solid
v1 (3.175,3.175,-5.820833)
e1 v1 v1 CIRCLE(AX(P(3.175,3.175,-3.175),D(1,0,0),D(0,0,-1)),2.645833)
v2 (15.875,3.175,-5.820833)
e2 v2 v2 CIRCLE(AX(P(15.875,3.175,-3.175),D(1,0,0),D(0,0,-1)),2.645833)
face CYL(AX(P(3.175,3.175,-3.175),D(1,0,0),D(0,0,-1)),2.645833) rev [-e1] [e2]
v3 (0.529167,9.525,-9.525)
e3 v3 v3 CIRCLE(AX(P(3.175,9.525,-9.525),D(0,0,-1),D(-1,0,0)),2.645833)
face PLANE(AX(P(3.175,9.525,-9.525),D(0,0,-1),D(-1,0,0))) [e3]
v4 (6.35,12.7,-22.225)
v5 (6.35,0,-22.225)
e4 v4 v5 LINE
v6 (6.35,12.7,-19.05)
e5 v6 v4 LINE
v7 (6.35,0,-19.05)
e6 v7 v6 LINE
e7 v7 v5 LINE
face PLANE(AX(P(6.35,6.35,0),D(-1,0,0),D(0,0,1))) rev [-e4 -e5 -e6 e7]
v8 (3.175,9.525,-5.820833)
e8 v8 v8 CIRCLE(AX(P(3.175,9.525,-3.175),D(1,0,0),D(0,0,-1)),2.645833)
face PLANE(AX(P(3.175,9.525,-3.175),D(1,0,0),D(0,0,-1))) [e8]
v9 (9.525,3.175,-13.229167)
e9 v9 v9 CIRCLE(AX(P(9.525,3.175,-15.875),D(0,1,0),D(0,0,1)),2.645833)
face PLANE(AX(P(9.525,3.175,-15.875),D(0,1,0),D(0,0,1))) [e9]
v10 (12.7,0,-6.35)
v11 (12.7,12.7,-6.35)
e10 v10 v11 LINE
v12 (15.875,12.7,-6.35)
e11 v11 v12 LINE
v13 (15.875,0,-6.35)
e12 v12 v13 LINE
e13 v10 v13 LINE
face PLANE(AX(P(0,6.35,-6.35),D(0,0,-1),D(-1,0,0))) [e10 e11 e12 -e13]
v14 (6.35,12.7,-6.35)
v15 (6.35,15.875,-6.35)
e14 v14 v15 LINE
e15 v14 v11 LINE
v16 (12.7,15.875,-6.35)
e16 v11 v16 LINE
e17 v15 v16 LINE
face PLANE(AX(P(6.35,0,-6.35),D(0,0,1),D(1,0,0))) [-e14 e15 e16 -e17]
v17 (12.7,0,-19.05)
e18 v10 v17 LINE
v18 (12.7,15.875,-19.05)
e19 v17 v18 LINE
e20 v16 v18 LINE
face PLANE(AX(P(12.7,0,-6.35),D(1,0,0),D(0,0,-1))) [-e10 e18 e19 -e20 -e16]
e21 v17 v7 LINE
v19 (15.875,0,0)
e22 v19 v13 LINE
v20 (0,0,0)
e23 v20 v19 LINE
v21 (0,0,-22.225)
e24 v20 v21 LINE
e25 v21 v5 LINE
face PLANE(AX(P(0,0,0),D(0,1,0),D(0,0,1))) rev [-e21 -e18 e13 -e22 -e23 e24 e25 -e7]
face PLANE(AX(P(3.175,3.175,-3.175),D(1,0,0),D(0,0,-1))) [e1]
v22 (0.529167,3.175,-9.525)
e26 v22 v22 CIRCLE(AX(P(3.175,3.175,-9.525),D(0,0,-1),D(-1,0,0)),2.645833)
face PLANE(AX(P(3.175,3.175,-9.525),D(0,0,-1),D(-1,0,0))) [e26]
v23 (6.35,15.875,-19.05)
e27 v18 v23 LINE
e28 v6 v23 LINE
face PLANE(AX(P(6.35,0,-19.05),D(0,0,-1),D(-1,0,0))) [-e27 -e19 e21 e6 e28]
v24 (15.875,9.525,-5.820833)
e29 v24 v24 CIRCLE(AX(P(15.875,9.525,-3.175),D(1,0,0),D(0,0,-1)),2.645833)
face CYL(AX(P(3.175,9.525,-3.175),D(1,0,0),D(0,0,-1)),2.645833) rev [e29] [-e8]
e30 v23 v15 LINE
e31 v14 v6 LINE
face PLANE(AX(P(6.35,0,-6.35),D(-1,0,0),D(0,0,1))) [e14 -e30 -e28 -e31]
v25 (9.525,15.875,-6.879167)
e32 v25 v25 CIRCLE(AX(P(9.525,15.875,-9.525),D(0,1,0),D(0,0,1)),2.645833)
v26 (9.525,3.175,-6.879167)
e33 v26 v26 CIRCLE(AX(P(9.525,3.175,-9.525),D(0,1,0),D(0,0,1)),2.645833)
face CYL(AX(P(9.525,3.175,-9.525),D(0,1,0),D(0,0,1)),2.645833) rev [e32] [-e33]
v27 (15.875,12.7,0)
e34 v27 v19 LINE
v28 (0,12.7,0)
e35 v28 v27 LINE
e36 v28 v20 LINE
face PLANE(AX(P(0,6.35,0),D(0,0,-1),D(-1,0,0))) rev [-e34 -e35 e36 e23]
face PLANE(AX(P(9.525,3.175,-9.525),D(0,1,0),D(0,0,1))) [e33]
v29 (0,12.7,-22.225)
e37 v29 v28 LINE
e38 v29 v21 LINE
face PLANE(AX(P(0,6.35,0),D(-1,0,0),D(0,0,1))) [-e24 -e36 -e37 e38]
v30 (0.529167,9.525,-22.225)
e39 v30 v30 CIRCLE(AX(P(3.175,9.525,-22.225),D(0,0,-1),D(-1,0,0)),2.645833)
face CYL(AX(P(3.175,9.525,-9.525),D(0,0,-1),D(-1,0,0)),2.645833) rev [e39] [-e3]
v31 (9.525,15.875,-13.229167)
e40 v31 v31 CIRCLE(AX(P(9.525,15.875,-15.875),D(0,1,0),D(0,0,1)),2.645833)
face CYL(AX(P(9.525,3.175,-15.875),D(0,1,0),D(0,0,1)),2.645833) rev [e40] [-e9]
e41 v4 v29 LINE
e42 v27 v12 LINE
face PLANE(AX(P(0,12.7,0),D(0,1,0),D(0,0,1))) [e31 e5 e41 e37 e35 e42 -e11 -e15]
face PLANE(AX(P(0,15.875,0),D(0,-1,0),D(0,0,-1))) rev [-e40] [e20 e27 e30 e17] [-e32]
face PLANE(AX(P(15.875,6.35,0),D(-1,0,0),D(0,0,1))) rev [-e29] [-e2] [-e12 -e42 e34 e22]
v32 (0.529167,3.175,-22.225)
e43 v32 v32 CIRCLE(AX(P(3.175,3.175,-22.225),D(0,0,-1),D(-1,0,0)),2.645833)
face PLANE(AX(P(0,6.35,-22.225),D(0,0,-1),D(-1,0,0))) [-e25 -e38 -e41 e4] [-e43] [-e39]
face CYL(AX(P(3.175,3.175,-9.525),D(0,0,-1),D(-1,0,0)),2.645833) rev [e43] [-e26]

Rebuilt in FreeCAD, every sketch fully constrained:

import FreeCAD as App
import Part
import Sketcher

V = App.Vector
Q = App.Units.Quantity


def add_polygon(sketch, points):
    """Adds a closed chain of lines whose ends are joined by coincident constraints."""
    first, n = sketch.GeometryCount, len(points)
    for a, b in zip(points, points[1:] + points[:1]):
        sketch.addGeometry(Part.LineSegment(App.Vector(*a, 0), App.Vector(*b, 0)), False)
    for i in range(n):
        sketch.addConstraint(Sketcher.Constraint("Coincident", first + i, 2, first + (i + 1) % n, 1))

doc = App.newDocument("Part")
params = doc.addObject("Spreadsheet::Sheet", "Params")
for row, (alias, value) in enumerate([
    ("sketch1_width", "0.25 in"),
    ("sketch1_width2", "0.625 in"),
    ("pad1_length", "0.25 in"),
    ("pocket1_length", "0.5 in"),
    ("pocket2_length", "0.5 in"),
    ("sketch4_width", "0.25 in"),
    ("sketch4_width2", "0.625 in"),
    ("pad2_length", "0.25 in"),
    ("pocket3_length", "0.5 in"),
    ("pocket4_length", "0.5 in"),
    ("sketch7_height", "0.5 in"),
    ("sketch7_width", "0.25 in"),
    ("pad3_length", "0.125 in"),
    ("pad3_length2", "0.5 in"),
    ("pocket5_length", "0.5 in"),
], start=1):
    params.set(f"A{row}", alias)
    params.set(f"B{row}", "=" + value)
    params.setAlias(f"B{row}", alias)

body = doc.addObject("PartDesign::Body", "Body")

# Sketch on XZ plane
sketch1 = doc.addObject("Sketcher::SketchObject", "Sketch")
body.addObject(sketch1)
sketch1.AttachmentSupport = (doc.XZ_Plane, [""])
sketch1.MapMode = "FlatFace"
add_polygon(sketch1, [(0, -22.225), (0, 0), (15.875, 0), (15.875, -6.35), (6.35, -6.35), (6.35, -22.225)])  # lines 0-5
sketch1.addConstraint([
    Sketcher.Constraint("Vertical", 0),
    Sketcher.Constraint("Horizontal", 1),
    Sketcher.Constraint("Vertical", 2),
    Sketcher.Constraint("Horizontal", 3),
    Sketcher.Constraint("Vertical", 4),
    Sketcher.Constraint("Horizontal", 5),
    Sketcher.Constraint("Coincident", 0, 2, -1, 1),
    Sketcher.Constraint("Equal", 5, 2),
    Sketcher.Constraint("Equal", 1, 4),
    Sketcher.Constraint("DistanceX", 5, 2, 5, 1, Q("0.25 in")),
    Sketcher.Constraint("DistanceX", 1, 1, 1, 2, Q("0.625 in")),
])
sketch1.setExpression("Constraints[15]", "Params.sketch1_width")
sketch1.setExpression("Constraints[16]", "Params.sketch1_width2")
pad1 = doc.addObject("PartDesign::Pad", "Pad")
body.addObject(pad1)
pad1.Profile = sketch1
pad1.setExpression("Length", "Params.pad1_length")
pad1.Reversed = True

# Sketch on YZ plane
sketch2 = doc.addObject("Sketcher::SketchObject", "Sketch001")
body.addObject(sketch2)
sketch2.AttachmentSupport = (doc.YZ_Plane, [""])
sketch2.MapMode = "FlatFace"
sketch2.AttachmentOffset = App.Placement(V(0, 0, 0.625 * 25.4), App.Rotation())
sketch2.addGeometry(Part.Circle(V(3.175, -3.175, 0), V(0, 0, 1), 2.645833), False)
sketch2.addConstraint([
    Sketcher.Constraint("DistanceX", -1, 1, 0, 3, Q("0.125 in")),
    Sketcher.Constraint("DistanceY", 0, 3, -1, 1, Q("0.125 in")),
    Sketcher.Constraint("Diameter", 0, 5.291667),
])
pocket1 = doc.addObject("PartDesign::Pocket", "Pocket")
body.addObject(pocket1)
pocket1.Profile = sketch2
pocket1.setExpression("Length", "Params.pocket1_length")

# Sketch on XY plane
sketch3 = doc.addObject("Sketcher::SketchObject", "Sketch002")
body.addObject(sketch3)
sketch3.AttachmentSupport = (doc.XY_Plane, [""])
sketch3.MapMode = "FlatFace"
sketch3.AttachmentOffset = App.Placement(V(0, 0, -0.875 * 25.4), App.Rotation())
sketch3.addGeometry(Part.Circle(V(3.175, 3.175, 0), V(0, 0, 1), 2.645833), False)
sketch3.addConstraint([
    Sketcher.Constraint("DistanceX", -1, 1, 0, 3, Q("0.125 in")),
    Sketcher.Constraint("DistanceY", -1, 1, 0, 3, Q("0.125 in")),
    Sketcher.Constraint("Diameter", 0, 5.291667),
])
pocket2 = doc.addObject("PartDesign::Pocket", "Pocket001")
body.addObject(pocket2)
pocket2.Profile = sketch3
pocket2.setExpression("Length", "Params.pocket2_length")
pocket2.Reversed = True

# Sketch on XZ plane
sketch4 = doc.addObject("Sketcher::SketchObject", "Sketch003")
body.addObject(sketch4)
sketch4.AttachmentSupport = (doc.XZ_Plane, [""])
sketch4.MapMode = "FlatFace"
sketch4.AttachmentOffset = App.Placement(V(0, 0, -0.25 * 25.4), App.Rotation())
add_polygon(sketch4, [(0, -22.225), (0, 0), (15.875, 0), (15.875, -6.35), (6.35, -6.35), (6.35, -22.225)])  # lines 0-5
sketch4.addConstraint([
    Sketcher.Constraint("Vertical", 0),
    Sketcher.Constraint("Horizontal", 1),
    Sketcher.Constraint("Vertical", 2),
    Sketcher.Constraint("Horizontal", 3),
    Sketcher.Constraint("Vertical", 4),
    Sketcher.Constraint("Horizontal", 5),
    Sketcher.Constraint("Coincident", 0, 2, -1, 1),
    Sketcher.Constraint("Equal", 5, 2),
    Sketcher.Constraint("Equal", 1, 4),
    Sketcher.Constraint("DistanceX", 5, 2, 5, 1, Q("0.25 in")),
    Sketcher.Constraint("DistanceX", 1, 1, 1, 2, Q("0.625 in")),
])
sketch4.setExpression("Constraints[15]", "Params.sketch4_width")
sketch4.setExpression("Constraints[16]", "Params.sketch4_width2")
pad2 = doc.addObject("PartDesign::Pad", "Pad001")
body.addObject(pad2)
pad2.Profile = sketch4
pad2.setExpression("Length", "Params.pad2_length")
pad2.Reversed = True

# Sketch on YZ plane
sketch5 = doc.addObject("Sketcher::SketchObject", "Sketch004")
body.addObject(sketch5)
sketch5.AttachmentSupport = (doc.YZ_Plane, [""])
sketch5.MapMode = "FlatFace"
sketch5.AttachmentOffset = App.Placement(V(0, 0, 0.625 * 25.4), App.Rotation())
sketch5.addGeometry(Part.Circle(V(9.525, -3.175, 0), V(0, 0, 1), 2.645833), False)
sketch5.addConstraint([
    Sketcher.Constraint("DistanceX", -1, 1, 0, 3, Q("0.375 in")),
    Sketcher.Constraint("DistanceY", 0, 3, -1, 1, Q("0.125 in")),
    Sketcher.Constraint("Diameter", 0, 5.291667),
])
pocket3 = doc.addObject("PartDesign::Pocket", "Pocket002")
body.addObject(pocket3)
pocket3.Profile = sketch5
pocket3.setExpression("Length", "Params.pocket3_length")

# Sketch on XY plane
sketch6 = doc.addObject("Sketcher::SketchObject", "Sketch005")
body.addObject(sketch6)
sketch6.AttachmentSupport = (doc.XY_Plane, [""])
sketch6.MapMode = "FlatFace"
sketch6.AttachmentOffset = App.Placement(V(0, 0, -0.875 * 25.4), App.Rotation())
sketch6.addGeometry(Part.Circle(V(3.175, 9.525, 0), V(0, 0, 1), 2.645833), False)
sketch6.addConstraint([
    Sketcher.Constraint("DistanceX", -1, 1, 0, 3, Q("0.125 in")),
    Sketcher.Constraint("DistanceY", -1, 1, 0, 3, Q("0.375 in")),
    Sketcher.Constraint("Diameter", 0, 5.291667),
])
pocket4 = doc.addObject("PartDesign::Pocket", "Pocket003")
body.addObject(pocket4)
pocket4.Profile = sketch6
pocket4.setExpression("Length", "Params.pocket4_length")
pocket4.Reversed = True

# Sketch on XZ plane
sketch7 = doc.addObject("Sketcher::SketchObject", "Sketch006")
body.addObject(sketch7)
sketch7.AttachmentSupport = (doc.XZ_Plane, [""])
sketch7.MapMode = "FlatFace"
sketch7.AttachmentOffset = App.Placement(V(0, 0, -0.5 * 25.4), App.Rotation())
add_polygon(sketch7, [(6.35, -19.05), (6.35, -6.35), (12.7, -6.35), (12.7, -19.05)])  # lines 0-3
sketch7.addConstraint([
    Sketcher.Constraint("Vertical", 0),
    Sketcher.Constraint("Horizontal", 1),
    Sketcher.Constraint("Vertical", 2),
    Sketcher.Constraint("Horizontal", 3),
    Sketcher.Constraint("DistanceY", 0, 1, 0, 2, Q("0.5 in")),
    Sketcher.Constraint("DistanceX", 1, 1, 1, 2, Q("0.25 in")),
    Sketcher.Constraint("DistanceX", -1, 1, 1, 2, Q("0.5 in")),
    Sketcher.Constraint("DistanceY", 0, 2, -1, 1, Q("0.25 in")),
])
sketch7.setExpression("Constraints[8]", "Params.sketch7_height")
sketch7.setExpression("Constraints[9]", "Params.sketch7_width")
pad3 = doc.addObject("PartDesign::Pad", "Pad002")
body.addObject(pad3)
pad3.Profile = sketch7
pad3.Type = "TwoLengths"
pad3.setExpression("Length", "Params.pad3_length")
pad3.setExpression("Length2", "Params.pad3_length2")
pad3.Reversed = True

# Sketch on XZ plane
sketch8 = doc.addObject("Sketcher::SketchObject", "Sketch007")
body.addObject(sketch8)
sketch8.AttachmentSupport = (doc.XZ_Plane, [""])
sketch8.MapMode = "FlatFace"
sketch8.AttachmentOffset = App.Placement(V(0, 0, -0.625 * 25.4), App.Rotation())
sketch8.addGeometry([
    Part.Circle(V(9.525, -9.525, 0), V(0, 0, 1), 2.645833),
    Part.Circle(V(9.525, -15.875, 0), V(0, 0, 1), 2.645833),
], False)
sketch8.addConstraint([
    Sketcher.Constraint("Equal", 0, 1),
    Sketcher.Constraint("Vertical", 0, 3, 1, 3),
    Sketcher.Constraint("DistanceY", 1, 3, 0, 3, Q("0.25 in")),
    Sketcher.Constraint("DistanceX", -1, 1, 0, 3, Q("0.375 in")),
    Sketcher.Constraint("DistanceY", 0, 3, -1, 1, Q("0.375 in")),
    Sketcher.Constraint("Diameter", 0, 5.291667),
])
pocket5 = doc.addObject("PartDesign::Pocket", "Pocket004")
body.addObject(pocket5)
pocket5.Profile = sketch8
pocket5.setExpression("Length", "Params.pocket5_length")
pocket5.Reversed = True

doc.recompute()
